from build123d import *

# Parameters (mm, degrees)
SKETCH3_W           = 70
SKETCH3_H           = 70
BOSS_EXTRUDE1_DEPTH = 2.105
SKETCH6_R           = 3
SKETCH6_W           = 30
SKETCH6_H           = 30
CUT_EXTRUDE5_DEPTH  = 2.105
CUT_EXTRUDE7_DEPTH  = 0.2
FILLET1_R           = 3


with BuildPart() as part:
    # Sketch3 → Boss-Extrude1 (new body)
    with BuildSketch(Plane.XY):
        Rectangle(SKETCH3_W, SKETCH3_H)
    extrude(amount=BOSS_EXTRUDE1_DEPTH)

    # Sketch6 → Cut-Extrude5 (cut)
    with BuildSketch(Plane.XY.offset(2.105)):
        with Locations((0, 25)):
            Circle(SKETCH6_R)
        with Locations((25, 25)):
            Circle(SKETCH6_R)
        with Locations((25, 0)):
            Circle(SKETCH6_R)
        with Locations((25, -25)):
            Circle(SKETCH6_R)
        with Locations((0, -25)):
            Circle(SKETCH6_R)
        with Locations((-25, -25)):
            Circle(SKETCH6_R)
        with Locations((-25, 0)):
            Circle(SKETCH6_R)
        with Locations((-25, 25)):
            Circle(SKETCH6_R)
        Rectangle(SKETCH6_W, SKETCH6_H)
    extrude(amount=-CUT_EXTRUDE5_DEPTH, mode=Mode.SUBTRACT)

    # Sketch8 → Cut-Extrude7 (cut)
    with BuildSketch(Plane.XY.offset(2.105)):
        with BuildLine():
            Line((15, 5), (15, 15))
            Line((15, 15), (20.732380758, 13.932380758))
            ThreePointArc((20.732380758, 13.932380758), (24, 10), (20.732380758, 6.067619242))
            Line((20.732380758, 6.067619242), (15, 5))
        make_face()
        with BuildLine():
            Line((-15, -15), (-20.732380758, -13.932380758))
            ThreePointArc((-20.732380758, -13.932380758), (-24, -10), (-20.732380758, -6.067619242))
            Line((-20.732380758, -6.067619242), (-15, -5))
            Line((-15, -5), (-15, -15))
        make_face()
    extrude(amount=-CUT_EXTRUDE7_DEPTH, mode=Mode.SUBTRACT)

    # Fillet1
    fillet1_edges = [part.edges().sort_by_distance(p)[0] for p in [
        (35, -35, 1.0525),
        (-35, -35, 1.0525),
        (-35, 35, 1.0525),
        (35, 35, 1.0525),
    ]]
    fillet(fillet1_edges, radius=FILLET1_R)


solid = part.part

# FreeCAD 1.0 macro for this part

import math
import FreeCAD as App
import Part
import Sketcher
from FreeCAD import Vector
Q = App.Units.Quantity


def edges_at(feature, points):
    """Names of the edges that pass closest to the given points."""
    edges = feature.Shape.Edges
    near = lambda p: min(range(len(edges)), key=lambda i: edges[i].distToShape(Part.Vertex(*p))[0])
    return sorted({f"Edge{near(p) + 1}" for p in points})

doc = App.newDocument("Part")
body = doc.addObject("PartDesign::Body", "Body")

sketch1 = body.newObject("Sketcher::SketchObject", "Sketch")
sketch1.AttachmentSupport = (doc.getObject("XY_Plane"), [""])
sketch1.MapMode = "FlatFace"
sketch1.addGeometry([
    Part.LineSegment(Vector(-35, 35, 0), Vector(-35, -35, 0)),
    Part.LineSegment(Vector(-35, -35, 0), Vector(35, -35, 0)),
    Part.LineSegment(Vector(35, -35, 0), Vector(35, 35, 0)),
    Part.LineSegment(Vector(35, 35, 0), Vector(-35, 35, 0)),
], False)
sketch1.addConstraint([
    Sketcher.Constraint("Coincident", 0, 2, 1, 1),
    Sketcher.Constraint("Coincident", 1, 2, 2, 1),
    Sketcher.Constraint("Coincident", 2, 2, 3, 1),
    Sketcher.Constraint("Coincident", 3, 2, 0, 1),
    Sketcher.Constraint("Vertical", 0),
    Sketcher.Constraint("Horizontal", 1),
    Sketcher.Constraint("Vertical", 2),
    Sketcher.Constraint("Horizontal", 3),
    Sketcher.Constraint("Symmetric", 0, 2, 2, 2, -1, 1),
    Sketcher.Constraint("Equal", 3, 0),
    Sketcher.Constraint("DistanceX", 1, 1, 1, 2, Q("70 mm")),
])
pad1 = body.newObject("PartDesign::Pad", "Pad")
pad1.Profile = sketch1
pad1.Length = 2.105

sketch2 = body.newObject("Sketcher::SketchObject", "Sketch001")
sketch2.AttachmentSupport = (doc.getObject("XY_Plane"), [""])
sketch2.MapMode = "FlatFace"
sketch2.AttachmentOffset = App.Placement(Vector(0, 0, 2.105), App.Rotation())
sketch2.addGeometry([
    Part.Circle(Vector(0, 25, 0), Vector(0, 0, 1), 3),
    Part.Circle(Vector(25, 25, 0), Vector(0, 0, 1), 3),
    Part.Circle(Vector(25, 0, 0), Vector(0, 0, 1), 3),
    Part.Circle(Vector(25, -25, 0), Vector(0, 0, 1), 3),
    Part.Circle(Vector(0, -25, 0), Vector(0, 0, 1), 3),
    Part.Circle(Vector(-25, -25, 0), Vector(0, 0, 1), 3),
    Part.Circle(Vector(-25, 0, 0), Vector(0, 0, 1), 3),
    Part.Circle(Vector(-25, 25, 0), Vector(0, 0, 1), 3),
    Part.LineSegment(Vector(-15, 15, 0), Vector(-15, -15, 0)),
    Part.LineSegment(Vector(-15, -15, 0), Vector(15, -15, 0)),
    Part.LineSegment(Vector(15, -15, 0), Vector(15, 15, 0)),
    Part.LineSegment(Vector(15, 15, 0), Vector(-15, 15, 0)),
], False)
sketch2.addConstraint([
    Sketcher.Constraint("Coincident", 8, 2, 9, 1),
    Sketcher.Constraint("Coincident", 9, 2, 10, 1),
    Sketcher.Constraint("Coincident", 10, 2, 11, 1),
    Sketcher.Constraint("Coincident", 11, 2, 8, 1),
    Sketcher.Constraint("Vertical", 8),
    Sketcher.Constraint("Horizontal", 9),
    Sketcher.Constraint("Vertical", 10),
    Sketcher.Constraint("Horizontal", 11),
    Sketcher.Constraint("Equal", 0, 1),
    Sketcher.Constraint("Equal", 1, 2),
    Sketcher.Constraint("Equal", 2, 3),
    Sketcher.Constraint("Equal", 3, 4),
    Sketcher.Constraint("Equal", 4, 5),
    Sketcher.Constraint("Equal", 5, 6),
    Sketcher.Constraint("Equal", 6, 7),
    Sketcher.Constraint("Symmetric", 0, 3, 4, 3, -1, 1),
    Sketcher.Constraint("Symmetric", 1, 3, 5, 3, -1, 1),
    Sketcher.Constraint("Symmetric", 2, 3, 6, 3, -1, 1),
    Sketcher.Constraint("Symmetric", 3, 3, 7, 3, -1, 1),
    Sketcher.Constraint("Symmetric", 8, 2, 10, 2, -1, 1),
    Sketcher.Constraint("Symmetric", 3, 3, 5, 3, -2),
    Sketcher.Constraint("PointOnObject", 0, 3, -2),
    Sketcher.Constraint("PointOnObject", 2, 3, -1),
    Sketcher.Constraint("Horizontal", 0, 3, 1, 3),
    Sketcher.Constraint("Vertical", 1, 3, 2, 3),
    Sketcher.Constraint("Equal", 11, 8),
    Sketcher.Constraint("Diameter", 0, Q("6 mm")),
    Sketcher.Constraint("DistanceX", 9, 1, 9, 2, Q("30 mm")),
    Sketcher.Constraint("DistanceY", -1, 1, 0, 3, Q("25 mm")),
    Sketcher.Constraint("DistanceX", -1, 1, 1, 3, Q("25 mm")),
])
pocket1 = body.newObject("PartDesign::Pocket", "Pocket")
pocket1.Profile = sketch2
pocket1.Length = 2.105

sketch3 = body.newObject("Sketcher::SketchObject", "Sketch002")
sketch3.AttachmentSupport = (doc.getObject("XY_Plane"), [""])
sketch3.MapMode = "FlatFace"
sketch3.AttachmentOffset = App.Placement(Vector(0, 0, 2.105), App.Rotation())
sketch3.addGeometry([
    Part.LineSegment(Vector(15, 15, 0), Vector(15, 5, 0)),
    Part.LineSegment(Vector(15, 5, 0), Vector(20.7, 6.1, 0)),
    Part.ArcOfCircle(Part.Circle(Vector(20, 10, 0), Vector(0, 0, 1), 4), math.radians(-79), math.radians(79)),
    Part.LineSegment(Vector(20.7, 13.9, 0), Vector(15, 15, 0)),
    Part.LineSegment(Vector(-20.7, -13.9, 0), Vector(-15, -15, 0)),
    Part.LineSegment(Vector(-15, -15, 0), Vector(-15, -5, 0)),
    Part.LineSegment(Vector(-15, -5, 0), Vector(-20.7, -6.1, 0)),
    Part.ArcOfCircle(Part.Circle(Vector(-20, -10, 0), Vector(0, 0, 1), 4), math.radians(101), math.radians(259)),
], False)
sketch3.addConstraint([
    Sketcher.Constraint("Coincident", 0, 2, 1, 1),
    Sketcher.Constraint("Tangent", 1, 2, 2, 1),
    Sketcher.Constraint("Tangent", 2, 2, 3, 1),
    Sketcher.Constraint("Coincident", 3, 2, 0, 1),
    Sketcher.Constraint("Coincident", 4, 2, 5, 1),
    Sketcher.Constraint("Coincident", 5, 2, 6, 1),
    Sketcher.Constraint("Tangent", 6, 2, 7, 1),
    Sketcher.Constraint("Tangent", 7, 2, 4, 1),
    Sketcher.Constraint("Vertical", 0),
    Sketcher.Constraint("Vertical", 5),
    Sketcher.Constraint("Equal", 2, 7),
    Sketcher.Constraint("Symmetric", 2, 3, 7, 3, -1, 1),
    Sketcher.Constraint("Symmetric", 3, 2, 4, 2, -1, 1),
    Sketcher.Constraint("Parallel", 1, 6),
    Sketcher.Constraint("Vertical", 1, 2, 2, 2),
    Sketcher.Constraint("Radius", 2, Q("4 mm")),
    Sketcher.Constraint("DistanceY", 0, 2, 0, 1, Q("10 mm")),
    Sketcher.Constraint("DistanceX", -1, 1, 2, 3, Q("20 mm")),
    Sketcher.Constraint("DistanceY", -1, 1, 2, 3, Q("10 mm")),
    Sketcher.Constraint("DistanceX", -1, 1, 0, 2, Q("15 mm")),
])
pocket2 = body.newObject("PartDesign::Pocket", "Pocket001")
pocket2.Profile = sketch3
pocket2.Length = 0.2
doc.recompute()

fillet = body.newObject("PartDesign::Fillet", "Fillet")
fillet.Base = (pocket2, edges_at(pocket2, [
    (35, -35, 1.052),
    (-35, -35, 1.052),
    (-35, 35, 1.052),
    (35, 35, 1.052),
]))
fillet.Radius = 3

doc.recompute()
